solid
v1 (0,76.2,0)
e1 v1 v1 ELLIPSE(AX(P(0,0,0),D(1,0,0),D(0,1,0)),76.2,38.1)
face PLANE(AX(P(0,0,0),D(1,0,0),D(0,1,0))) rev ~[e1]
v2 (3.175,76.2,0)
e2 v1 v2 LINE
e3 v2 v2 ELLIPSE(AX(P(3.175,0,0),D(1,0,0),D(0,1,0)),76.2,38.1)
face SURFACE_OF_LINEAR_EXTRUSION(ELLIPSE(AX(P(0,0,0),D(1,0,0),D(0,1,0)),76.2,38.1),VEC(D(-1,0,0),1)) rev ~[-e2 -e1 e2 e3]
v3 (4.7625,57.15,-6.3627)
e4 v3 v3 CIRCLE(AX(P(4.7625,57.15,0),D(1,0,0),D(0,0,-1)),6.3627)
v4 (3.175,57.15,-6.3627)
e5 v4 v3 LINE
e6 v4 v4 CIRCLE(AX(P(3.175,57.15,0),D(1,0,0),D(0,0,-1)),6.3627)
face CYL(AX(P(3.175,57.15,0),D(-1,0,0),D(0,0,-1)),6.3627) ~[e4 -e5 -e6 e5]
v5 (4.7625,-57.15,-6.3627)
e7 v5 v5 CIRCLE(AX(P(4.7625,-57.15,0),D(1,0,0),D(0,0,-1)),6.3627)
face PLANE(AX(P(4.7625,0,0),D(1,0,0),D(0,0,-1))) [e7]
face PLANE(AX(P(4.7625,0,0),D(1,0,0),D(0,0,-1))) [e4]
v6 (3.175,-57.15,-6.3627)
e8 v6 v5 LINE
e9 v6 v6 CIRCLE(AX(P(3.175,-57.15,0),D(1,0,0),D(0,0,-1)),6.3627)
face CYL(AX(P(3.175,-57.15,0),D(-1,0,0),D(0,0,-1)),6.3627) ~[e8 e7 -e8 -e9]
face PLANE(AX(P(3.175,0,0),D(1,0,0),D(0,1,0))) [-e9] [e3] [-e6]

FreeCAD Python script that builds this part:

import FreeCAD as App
import Part
import Sketcher

V = App.Vector
Q = App.Units.Quantity

doc = App.newDocument("Part")
body = doc.addObject("PartDesign::Body", "Body")

sketch1 = doc.addObject("Sketcher::SketchObject", "Sketch")
body.addObject(sketch1)
sketch1.AttachmentSupport = (doc.YZ_Plane, [""])
sketch1.MapMode = "FlatFace"
sketch1.addGeometry(Part.Ellipse(V(76.2, 0, 0), V(0, 38.1, 0), V(0, 0, 0)), False)
sketch1.addConstraint(Sketcher.Constraint("Block", 0))
pad1 = doc.addObject("PartDesign::Pad", "Pad")
body.addObject(pad1)
pad1.Profile = sketch1
pad1.Length = Q("0.125 in")

sketch2 = doc.addObject("Sketcher::SketchObject", "Sketch001")
body.addObject(sketch2)
sketch2.AttachmentSupport = (doc.YZ_Plane, [""])
sketch2.MapMode = "FlatFace"
sketch2.AttachmentOffset = App.Placement(V(0, 0, 0.125 * 25.4), App.Rotation())
sketch2.addGeometry(Part.Circle(V(57, 0, 0), V(0, 0, 1), 6), False)
sketch2.addGeometry(Part.Circle(V(-57, 0, 0), V(0, 0, 1), 6), False)
sketch2.addConstraint(Sketcher.Constraint("Equal", 0, 1))
sketch2.addConstraint(Sketcher.Constraint("Symmetric", 0, 3, 1, 3, -1, 1))
sketch2.addConstraint(Sketcher.Constraint("PointOnObject", 0, 3, -1))
sketch2.addConstraint(Sketcher.Constraint("Diameter", 0, Q("0.501 in")))
sketch2.addConstraint(Sketcher.Constraint("DistanceX", -1, 1, 0, 3, Q("2.25 in")))
pad2 = doc.addObject("PartDesign::Pad", "Pad001")
body.addObject(pad2)
pad2.Profile = sketch2
pad2.Length = Q("0.0625 in")

doc.recompute()
